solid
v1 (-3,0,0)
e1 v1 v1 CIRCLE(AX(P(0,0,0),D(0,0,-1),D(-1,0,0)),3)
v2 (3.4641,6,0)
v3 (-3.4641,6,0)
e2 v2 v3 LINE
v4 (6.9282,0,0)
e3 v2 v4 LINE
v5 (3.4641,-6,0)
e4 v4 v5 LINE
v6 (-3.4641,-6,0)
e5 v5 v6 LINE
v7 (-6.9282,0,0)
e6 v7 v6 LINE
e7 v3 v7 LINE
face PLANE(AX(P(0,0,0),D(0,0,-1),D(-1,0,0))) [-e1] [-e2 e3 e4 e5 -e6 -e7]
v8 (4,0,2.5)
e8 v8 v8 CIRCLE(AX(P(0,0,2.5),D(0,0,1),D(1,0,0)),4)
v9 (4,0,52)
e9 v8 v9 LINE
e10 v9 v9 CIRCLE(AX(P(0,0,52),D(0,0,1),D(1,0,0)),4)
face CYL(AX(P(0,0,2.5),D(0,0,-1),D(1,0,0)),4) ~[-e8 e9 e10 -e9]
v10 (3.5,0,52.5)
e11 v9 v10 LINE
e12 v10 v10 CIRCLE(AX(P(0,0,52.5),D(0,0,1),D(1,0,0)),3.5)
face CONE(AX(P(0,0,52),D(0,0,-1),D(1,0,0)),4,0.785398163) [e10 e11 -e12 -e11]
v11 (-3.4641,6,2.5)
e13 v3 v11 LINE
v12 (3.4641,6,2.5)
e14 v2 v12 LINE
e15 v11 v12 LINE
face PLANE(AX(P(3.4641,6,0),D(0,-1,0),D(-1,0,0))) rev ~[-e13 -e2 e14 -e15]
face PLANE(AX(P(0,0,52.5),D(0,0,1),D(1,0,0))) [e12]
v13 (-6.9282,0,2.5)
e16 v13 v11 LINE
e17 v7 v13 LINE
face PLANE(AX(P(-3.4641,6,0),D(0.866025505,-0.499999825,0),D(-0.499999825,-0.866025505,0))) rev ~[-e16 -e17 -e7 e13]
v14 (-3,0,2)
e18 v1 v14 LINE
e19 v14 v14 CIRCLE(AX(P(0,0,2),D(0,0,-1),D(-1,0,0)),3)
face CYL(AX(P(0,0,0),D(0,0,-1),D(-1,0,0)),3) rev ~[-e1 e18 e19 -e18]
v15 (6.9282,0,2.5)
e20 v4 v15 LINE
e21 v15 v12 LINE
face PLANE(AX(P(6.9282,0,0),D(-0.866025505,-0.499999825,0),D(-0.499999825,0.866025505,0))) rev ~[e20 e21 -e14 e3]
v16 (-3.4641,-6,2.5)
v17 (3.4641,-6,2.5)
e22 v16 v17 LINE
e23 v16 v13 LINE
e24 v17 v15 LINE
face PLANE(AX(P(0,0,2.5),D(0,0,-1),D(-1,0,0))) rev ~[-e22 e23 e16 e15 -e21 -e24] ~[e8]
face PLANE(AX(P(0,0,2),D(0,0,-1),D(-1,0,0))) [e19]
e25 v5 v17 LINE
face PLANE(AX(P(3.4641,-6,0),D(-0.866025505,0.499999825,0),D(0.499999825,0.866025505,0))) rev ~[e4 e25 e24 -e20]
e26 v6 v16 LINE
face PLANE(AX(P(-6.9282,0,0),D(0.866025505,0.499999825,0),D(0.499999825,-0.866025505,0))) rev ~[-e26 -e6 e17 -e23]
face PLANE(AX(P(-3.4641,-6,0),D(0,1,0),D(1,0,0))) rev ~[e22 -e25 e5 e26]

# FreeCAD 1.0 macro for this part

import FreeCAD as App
import Part
import Sketcher

V = App.Vector
Q = App.Units.Quantity


def edges_at(feature, points):
    """Names of the edges that pass closest to the given points."""
    edges = feature.Shape.Edges
    near = lambda p: min(range(len(edges)), key=lambda i: edges[i].distToShape(Part.Vertex(*p))[0])
    return sorted({f"Edge{near(p) + 1}" for p in points})


def add_polygon(sketch, points):
    """Adds a closed chain of lines whose ends are joined by coincident constraints."""
    first, n = sketch.GeometryCount, len(points)
    for a, b in zip(points, points[1:] + points[:1]):
        sketch.addGeometry(Part.LineSegment(App.Vector(*a, 0), App.Vector(*b, 0)), False)
    for i in range(n):
        sketch.addConstraint(Sketcher.Constraint("Coincident", first + i, 2, first + (i + 1) % n, 1))

doc = App.newDocument("Part")
body = doc.addObject("PartDesign::Body", "Body")

# Sketch on XY plane
sketch1 = body.newObject("Sketcher::SketchObject", "Sketch")
sketch1.AttachmentSupport = (doc.getObject("XY_Plane"), [""])
sketch1.MapMode = "FlatFace"
sketch1.addGeometry(Part.Circle(V(0, 0, 0), V(0, 0, 1), 6), False)
sketch1.addConstraint([
    Sketcher.Constraint("Coincident", 0, 3, -1, 1),
    Sketcher.Constraint("Diameter", 0, 12.0),
])
pad1 = body.newObject("PartDesign::Pad", "Pad")
pad1.Profile = sketch1
pad1.Length = 2.5

# Sketch on XY plane
sketch2 = body.newObject("Sketcher::SketchObject", "Sketch001")
sketch2.AttachmentSupport = (doc.getObject("XY_Plane"), [""])
sketch2.MapMode = "FlatFace"
sketch2.AttachmentOffset = App.Placement(V(0, 0, 2.5), App.Rotation())
sketch2.addGeometry(Part.Circle(V(0, 0, 0), V(0, 0, 1), 4), False)
sketch2.addConstraint([
    Sketcher.Constraint("Coincident", 0, 3, -1, 1),
    Sketcher.Constraint("Diameter", 0, 8.0),
])
pad2 = body.newObject("PartDesign::Pad", "Pad001")
pad2.Profile = sketch2
pad2.Length = 50

# Sketch on XY plane
sketch3 = body.newObject("Sketcher::SketchObject", "Sketch002")
sketch3.AttachmentSupport = (doc.getObject("XY_Plane"), [""])
sketch3.MapMode = "FlatFace"
sketch3.addGeometry(Part.Circle(V(0, 0, 0), V(0, 0, 1), 3), False)
sketch3.addConstraint([
    Sketcher.Constraint("Coincident", 0, 3, -1, 1),
    Sketcher.Constraint("Diameter", 0, 6.0),
])
pocket1 = body.newObject("PartDesign::Pocket", "Pocket")
pocket1.Profile = sketch3
pocket1.Length = 2
pocket1.Reversed = True

# Sketch on XY plane
sketch4 = body.newObject("Sketcher::SketchObject", "Sketch003")
sketch4.AttachmentSupport = (doc.getObject("XY_Plane"), [""])
sketch4.MapMode = "FlatFace"
add_polygon(sketch4, [(-6.9282, 0), (-3.4641, 6), (3.4641, 6), (6.9282, 0), (3.4641, -6), (-3.4641, -6)])  # lines 0-5
sketch4.addGeometry(Part.Circle(V(0, 0, 0), V(0, 0, 1), 3), False)  # 6
sketch4.addConstraint([
    Sketcher.Constraint("Horizontal", 1),
    Sketcher.Constraint("Horizontal", 4),
    Sketcher.Constraint("Coincident", 6, 3, -1, 1),
    Sketcher.Constraint("Symmetric", 0, 2, 3, 2, -1, 1),
    Sketcher.Constraint("Symmetric", 2, 2, 5, 2, -1, 1),
    Sketcher.Constraint("PointOnObject", 2, 2, -1),
    Sketcher.Constraint("Parallel", 2, 5),
    Sketcher.Constraint("Vertical", 1, 2, 3, 2),
    Sketcher.Constraint("Diameter", 6, 6.0),
    Sketcher.Constraint("DistanceY", 3, 2, 1, 2, 12.0),
    Sketcher.Constraint("Angle", 0, Q("60 deg")),
    Sketcher.Constraint("DistanceX", 1, 1, 1, 2, 6.9282),
])
pad3 = body.newObject("PartDesign::Pad", "Pad002")
pad3.Profile = sketch4
pad3.Length = 2.5
doc.recompute()

chamfer = body.newObject("PartDesign::Chamfer", "Chamfer")
chamfer.Base = (pad3, edges_at(pad3, [(-4, 0, 52.5)]))
chamfer.Size = 0.5

doc.recompute()
